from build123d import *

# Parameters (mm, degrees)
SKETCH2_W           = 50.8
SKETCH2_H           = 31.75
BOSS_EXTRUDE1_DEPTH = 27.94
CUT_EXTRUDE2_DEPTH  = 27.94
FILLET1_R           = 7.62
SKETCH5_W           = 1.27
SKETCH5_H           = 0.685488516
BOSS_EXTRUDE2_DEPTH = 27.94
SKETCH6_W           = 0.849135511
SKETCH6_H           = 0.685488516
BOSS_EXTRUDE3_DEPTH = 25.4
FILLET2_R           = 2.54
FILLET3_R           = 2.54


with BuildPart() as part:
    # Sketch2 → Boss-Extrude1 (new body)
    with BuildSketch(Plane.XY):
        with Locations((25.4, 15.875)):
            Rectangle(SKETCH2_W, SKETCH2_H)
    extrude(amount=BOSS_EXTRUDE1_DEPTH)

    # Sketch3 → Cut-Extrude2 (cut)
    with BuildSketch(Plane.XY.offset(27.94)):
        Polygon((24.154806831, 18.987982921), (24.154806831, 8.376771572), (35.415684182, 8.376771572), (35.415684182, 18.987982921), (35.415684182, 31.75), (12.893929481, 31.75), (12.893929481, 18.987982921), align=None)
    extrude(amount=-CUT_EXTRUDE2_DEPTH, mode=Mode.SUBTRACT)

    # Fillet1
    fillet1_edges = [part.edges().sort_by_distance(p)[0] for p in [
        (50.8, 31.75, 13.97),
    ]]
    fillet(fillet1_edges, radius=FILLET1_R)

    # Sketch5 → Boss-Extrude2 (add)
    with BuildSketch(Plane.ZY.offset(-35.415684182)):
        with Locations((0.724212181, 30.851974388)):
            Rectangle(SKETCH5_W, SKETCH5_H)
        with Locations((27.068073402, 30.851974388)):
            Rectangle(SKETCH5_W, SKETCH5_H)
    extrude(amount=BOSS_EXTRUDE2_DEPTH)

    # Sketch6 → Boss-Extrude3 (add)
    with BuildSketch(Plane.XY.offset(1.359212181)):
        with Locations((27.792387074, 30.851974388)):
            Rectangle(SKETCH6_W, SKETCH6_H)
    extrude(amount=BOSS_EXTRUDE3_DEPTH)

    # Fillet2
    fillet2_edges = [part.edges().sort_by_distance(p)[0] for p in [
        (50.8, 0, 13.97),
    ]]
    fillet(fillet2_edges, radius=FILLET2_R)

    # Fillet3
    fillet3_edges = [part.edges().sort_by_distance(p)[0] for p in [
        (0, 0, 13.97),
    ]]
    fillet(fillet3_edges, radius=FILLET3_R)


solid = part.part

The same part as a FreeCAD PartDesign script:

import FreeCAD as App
import Part
import Sketcher
Q = App.Units.Quantity


def edges_at(feature, points):
    """Names of the edges that pass closest to the given points."""
    edges = feature.Shape.Edges
    near = lambda p: min(range(len(edges)), key=lambda i: edges[i].distToShape(Part.Vertex(*p))[0])
    return sorted({f"Edge{near(p) + 1}" for p in points})

doc = App.newDocument("Part")
params = doc.addObject("Spreadsheet::Sheet", "Params")
for row, (alias, value) in enumerate([
    ("sketch1_width", "2 in"),
    ("sketch1_height", "1.25 in"),
    ("pad1_length", "1.1 in"),
    ("pocket1_length", "1.1 in"),
    ("fillet_radius", "0.3 in"),
    ("sketch3_height", "0.05 in"),
    ("pad2_length", "1.1 in"),
    ("pad3_length", "1 in"),
    ("fillet2_radius", "0.1 in"),
    ("fillet3_radius", "0.1 in"),
], start=1):
    params.set(f"A{row}", alias)
    params.set(f"B{row}", "=" + value)
    params.setAlias(f"B{row}", alias)

body = doc.addObject("PartDesign::Body", "Body")

# Sketch on XY plane
sketch1 = body.newObject("Sketcher::SketchObject", "Sketch")
sketch1.AttachmentSupport = (doc.getObject("XY_Plane"), [""])
sketch1.MapMode = "FlatFace"
sketch1.addGeometry(Part.LineSegment(App.Vector(0, 32, 0), App.Vector(0, 0, 0)), False)
sketch1.addGeometry(Part.LineSegment(App.Vector(0, 0, 0), App.Vector(51, 0, 0)), False)
sketch1.addGeometry(Part.LineSegment(App.Vector(51, 0, 0), App.Vector(51, 32, 0)), False)
sketch1.addGeometry(Part.LineSegment(App.Vector(51, 32, 0), App.Vector(0, 32, 0)), False)
sketch1.addConstraint(Sketcher.Constraint("Coincident", 0, 2, 1, 1))
sketch1.addConstraint(Sketcher.Constraint("Coincident", 1, 2, 2, 1))
sketch1.addConstraint(Sketcher.Constraint("Coincident", 2, 2, 3, 1))
sketch1.addConstraint(Sketcher.Constraint("Coincident", 3, 2, 0, 1))
sketch1.addConstraint(Sketcher.Constraint("Vertical", 0))
sketch1.addConstraint(Sketcher.Constraint("Horizontal", 1))
sketch1.addConstraint(Sketcher.Constraint("Vertical", 2))
sketch1.addConstraint(Sketcher.Constraint("Horizontal", 3))
sketch1.addConstraint(Sketcher.Constraint("Coincident", 0, 2, -1, 1))
sketch1.addConstraint(Sketcher.Constraint("DistanceX", 1, 1, 1, 2, Q("2 in")))
sketch1.addConstraint(Sketcher.Constraint("DistanceY", 0, 2, 0, 1, Q("1.25 in")))
sketch1.setExpression("Constraints[9]", "Params.sketch1_width")
sketch1.setExpression("Constraints[10]", "Params.sketch1_height")
pad1 = body.newObject("PartDesign::Pad", "Pad")
pad1.Profile = sketch1
pad1.setExpression("Length", "Params.pad1_length")

# Sketch on XY plane
sketch2 = body.newObject("Sketcher::SketchObject", "Sketch001")
sketch2.AttachmentSupport = (doc.getObject("XY_Plane"), [""])
sketch2.MapMode = "FlatFace"
sketch2.AttachmentOffset = App.Placement(App.Vector(0, 0, 1.1 * 25.4), App.Rotation())
sketch2.addGeometry(Part.LineSegment(App.Vector(24, 19, 0), App.Vector(24, 8, 0)), False)
sketch2.addGeometry(Part.LineSegment(App.Vector(24, 8, 0), App.Vector(35, 8, 0)), False)
sketch2.addGeometry(Part.LineSegment(App.Vector(35, 8, 0), App.Vector(35, 32, 0)), False)
sketch2.addGeometry(Part.LineSegment(App.Vector(35, 32, 0), App.Vector(13, 32, 0)), False)
sketch2.addGeometry(Part.LineSegment(App.Vector(13, 32, 0), App.Vector(13, 19, 0)), False)
sketch2.addGeometry(Part.LineSegment(App.Vector(13, 19, 0), App.Vector(24, 19, 0)), False)
sketch2.addConstraint(Sketcher.Constraint("Coincident", 0, 2, 1, 1))
sketch2.addConstraint(Sketcher.Constraint("Coincident", 1, 2, 2, 1))
sketch2.addConstraint(Sketcher.Constraint("Coincident", 2, 2, 3, 1))
sketch2.addConstraint(Sketcher.Constraint("Coincident", 3, 2, 4, 1))
sketch2.addConstraint(Sketcher.Constraint("Coincident", 4, 2, 5, 1))
sketch2.addConstraint(Sketcher.Constraint("Coincident", 5, 2, 0, 1))
sketch2.addConstraint(Sketcher.Constraint("Vertical", 0))
sketch2.addConstraint(Sketcher.Constraint("Horizontal", 1))
sketch2.addConstraint(Sketcher.Constraint("Vertical", 2))
sketch2.addConstraint(Sketcher.Constraint("Horizontal", 3))
sketch2.addConstraint(Sketcher.Constraint("Vertical", 4))
sketch2.addConstraint(Sketcher.Constraint("Horizontal", 5))
sketch2.addConstraint(Sketcher.Constraint("Equal", 1, 5))
sketch2.addConstraint(Sketcher.Constraint("DistanceY", -1, 1, 2, 2, Q("1.25 in")))
sketch2.addConstraint(Sketcher.Constraint("DistanceY", 0, 2, 0, 1, Q("10.611211 mm")))
sketch2.addConstraint(Sketcher.Constraint("DistanceY", 2, 1, 2, 2, Q("23.373228 mm")))
sketch2.addConstraint(Sketcher.Constraint("DistanceX", 1, 1, 1, 2, Q("11.260877 mm")))
sketch2.addConstraint(Sketcher.Constraint("DistanceX", -1, 1, 3, 2, Q("12.893929 mm")))
pocket1 = body.newObject("PartDesign::Pocket", "Pocket")
pocket1.Profile = sketch2
pocket1.setExpression("Length", "Params.pocket1_length")
doc.recompute()

fillet = body.newObject("PartDesign::Fillet", "Fillet")
fillet.Base = (pocket1, edges_at(pocket1, [(50.8, 31.75, 13.97)]))
fillet.setExpression("Radius", "Params.fillet_radius")

# Sketch on YZ plane
sketch3 = body.newObject("Sketcher::SketchObject", "Sketch002")
sketch3.AttachmentSupport = (doc.getObject("YZ_Plane"), [""])
sketch3.MapMode = "FlatFace"
sketch3.AttachmentOffset = App.Placement(App.Vector(0, 0, 35.415684), App.Rotation())
sketch3.addGeometry(Part.LineSegment(App.Vector(31.2, 0.1, 0), App.Vector(30.5, 0.1, 0)), False)
sketch3.addGeometry(Part.LineSegment(App.Vector(30.5, 0.1, 0), App.Vector(30.5, 1.4, 0)), False)
sketch3.addGeometry(Part.LineSegment(App.Vector(30.5, 1.4, 0), App.Vector(31.2, 1.4, 0)), False)
sketch3.addGeometry(Part.LineSegment(App.Vector(31.2, 1.4, 0), App.Vector(31.2, 0.1, 0)), False)
sketch3.addGeometry(Part.LineSegment(App.Vector(31.2, 26.4, 0), App.Vector(30.5, 26.4, 0)), False)
sketch3.addGeometry(Part.LineSegment(App.Vector(30.5, 26.4, 0), App.Vector(30.5, 27.7, 0)), False)
sketch3.addGeometry(Part.LineSegment(App.Vector(30.5, 27.7, 0), App.Vector(31.2, 27.7, 0)), False)
sketch3.addGeometry(Part.LineSegment(App.Vector(31.2, 27.7, 0), App.Vector(31.2, 26.4, 0)), False)
sketch3.addConstraint(Sketcher.Constraint("Coincident", 0, 2, 1, 1))
sketch3.addConstraint(Sketcher.Constraint("Coincident", 1, 2, 2, 1))
sketch3.addConstraint(Sketcher.Constraint("Coincident", 2, 2, 3, 1))
sketch3.addConstraint(Sketcher.Constraint("Coincident", 3, 2, 0, 1))
sketch3.addConstraint(Sketcher.Constraint("Coincident", 4, 2, 5, 1))
sketch3.addConstraint(Sketcher.Constraint("Coincident", 5, 2, 6, 1))
sketch3.addConstraint(Sketcher.Constraint("Coincident", 6, 2, 7, 1))
sketch3.addConstraint(Sketcher.Constraint("Coincident", 7, 2, 4, 1))
sketch3.addConstraint(Sketcher.Constraint("Horizontal", 0))
sketch3.addConstraint(Sketcher.Constraint("Vertical", 1))
sketch3.addConstraint(Sketcher.Constraint("Horizontal", 2))
sketch3.addConstraint(Sketcher.Constraint("Vertical", 3))
sketch3.addConstraint(Sketcher.Constraint("Horizontal", 4))
sketch3.addConstraint(Sketcher.Constraint("Vertical", 5))
sketch3.addConstraint(Sketcher.Constraint("Horizontal", 6))
sketch3.addConstraint(Sketcher.Constraint("Vertical", 7))
sketch3.addConstraint(Sketcher.Constraint("Vertical", 1, 2, 4, 2))
sketch3.addConstraint(Sketcher.Constraint("Vertical", 3, 2, 6, 2))
sketch3.addConstraint(Sketcher.Constraint("Equal", 3, 5))
sketch3.addConstraint(Sketcher.Constraint("DistanceY", 1, 1, 1, 2, Q("0.05 in")))
sketch3.addConstraint(Sketcher.Constraint("DistanceX", 0, 2, 0, 1, Q("0.685489 mm")))
sketch3.addConstraint(Sketcher.Constraint("DistanceX", -1, 1, 0, 2, Q("30.50923 mm")))
sketch3.addConstraint(Sketcher.Constraint("DistanceY", 1, 2, 4, 2, Q("25.073861 mm")))
sketch3.addConstraint(Sketcher.Constraint("DistanceY", -1, 1, 0, 2, Q("0.089212 mm")))
sketch3.setExpression("Constraints[19]", "Params.sketch3_height")
pad2 = body.newObject("PartDesign::Pad", "Pad001")
pad2.Profile = sketch3
pad2.setExpression("Length", "Params.pad2_length")
pad2.Reversed = True

# Sketch on XY plane
sketch4 = body.newObject("Sketcher::SketchObject", "Sketch003")
sketch4.AttachmentSupport = (doc.getObject("XY_Plane"), [""])
sketch4.MapMode = "FlatFace"
sketch4.AttachmentOffset = App.Placement(App.Vector(0, 0, 1.359212), App.Rotation())
sketch4.addGeometry(Part.LineSegment(App.Vector(27.4, 31.2, 0), App.Vector(27.4, 30.5, 0)), False)
sketch4.addGeometry(Part.LineSegment(App.Vector(27.4, 30.5, 0), App.Vector(28.2, 30.5, 0)), False)
sketch4.addGeometry(Part.LineSegment(App.Vector(28.2, 30.5, 0), App.Vector(28.2, 31.2, 0)), False)
sketch4.addGeometry(Part.LineSegment(App.Vector(28.2, 31.2, 0), App.Vector(27.4, 31.2, 0)), False)
sketch4.addConstraint(Sketcher.Constraint("Coincident", 0, 2, 1, 1))
sketch4.addConstraint(Sketcher.Constraint("Coincident", 1, 2, 2, 1))
sketch4.addConstraint(Sketcher.Constraint("Coincident", 2, 2, 3, 1))
sketch4.addConstraint(Sketcher.Constraint("Coincident", 3, 2, 0, 1))
sketch4.addConstraint(Sketcher.Constraint("Vertical", 0))
sketch4.addConstraint(Sketcher.Constraint("Horizontal", 1))
sketch4.addConstraint(Sketcher.Constraint("Vertical", 2))
sketch4.addConstraint(Sketcher.Constraint("Horizontal", 3))
sketch4.addConstraint(Sketcher.Constraint("DistanceY", 0, 2, 0, 1, Q("0.685489 mm")))
sketch4.addConstraint(Sketcher.Constraint("DistanceX", 1, 1, 1, 2, Q("0.849136 mm")))
sketch4.addConstraint(Sketcher.Constraint("DistanceX", -1, 1, 0, 2, Q("27.367819 mm")))
sketch4.addConstraint(Sketcher.Constraint("DistanceY", -1, 1, 0, 2, Q("30.50923 mm")))
pad3 = body.newObject("PartDesign::Pad", "Pad002")
pad3.Profile = sketch4
pad3.setExpression("Length", "Params.pad3_length")
doc.recompute()

fillet2 = body.newObject("PartDesign::Fillet", "Fillet001")
fillet2.Base = (pad3, edges_at(pad3, [(50.8, 0, 13.97)]))
fillet2.setExpression("Radius", "Params.fillet2_radius")
doc.recompute()

fillet3 = body.newObject("PartDesign::Fillet", "Fillet002")
fillet3.Base = (fillet2, edges_at(fillet2, [(0, 0, 13.97)]))
fillet3.setExpression("Radius", "Params.fillet3_radius")

doc.recompute()
